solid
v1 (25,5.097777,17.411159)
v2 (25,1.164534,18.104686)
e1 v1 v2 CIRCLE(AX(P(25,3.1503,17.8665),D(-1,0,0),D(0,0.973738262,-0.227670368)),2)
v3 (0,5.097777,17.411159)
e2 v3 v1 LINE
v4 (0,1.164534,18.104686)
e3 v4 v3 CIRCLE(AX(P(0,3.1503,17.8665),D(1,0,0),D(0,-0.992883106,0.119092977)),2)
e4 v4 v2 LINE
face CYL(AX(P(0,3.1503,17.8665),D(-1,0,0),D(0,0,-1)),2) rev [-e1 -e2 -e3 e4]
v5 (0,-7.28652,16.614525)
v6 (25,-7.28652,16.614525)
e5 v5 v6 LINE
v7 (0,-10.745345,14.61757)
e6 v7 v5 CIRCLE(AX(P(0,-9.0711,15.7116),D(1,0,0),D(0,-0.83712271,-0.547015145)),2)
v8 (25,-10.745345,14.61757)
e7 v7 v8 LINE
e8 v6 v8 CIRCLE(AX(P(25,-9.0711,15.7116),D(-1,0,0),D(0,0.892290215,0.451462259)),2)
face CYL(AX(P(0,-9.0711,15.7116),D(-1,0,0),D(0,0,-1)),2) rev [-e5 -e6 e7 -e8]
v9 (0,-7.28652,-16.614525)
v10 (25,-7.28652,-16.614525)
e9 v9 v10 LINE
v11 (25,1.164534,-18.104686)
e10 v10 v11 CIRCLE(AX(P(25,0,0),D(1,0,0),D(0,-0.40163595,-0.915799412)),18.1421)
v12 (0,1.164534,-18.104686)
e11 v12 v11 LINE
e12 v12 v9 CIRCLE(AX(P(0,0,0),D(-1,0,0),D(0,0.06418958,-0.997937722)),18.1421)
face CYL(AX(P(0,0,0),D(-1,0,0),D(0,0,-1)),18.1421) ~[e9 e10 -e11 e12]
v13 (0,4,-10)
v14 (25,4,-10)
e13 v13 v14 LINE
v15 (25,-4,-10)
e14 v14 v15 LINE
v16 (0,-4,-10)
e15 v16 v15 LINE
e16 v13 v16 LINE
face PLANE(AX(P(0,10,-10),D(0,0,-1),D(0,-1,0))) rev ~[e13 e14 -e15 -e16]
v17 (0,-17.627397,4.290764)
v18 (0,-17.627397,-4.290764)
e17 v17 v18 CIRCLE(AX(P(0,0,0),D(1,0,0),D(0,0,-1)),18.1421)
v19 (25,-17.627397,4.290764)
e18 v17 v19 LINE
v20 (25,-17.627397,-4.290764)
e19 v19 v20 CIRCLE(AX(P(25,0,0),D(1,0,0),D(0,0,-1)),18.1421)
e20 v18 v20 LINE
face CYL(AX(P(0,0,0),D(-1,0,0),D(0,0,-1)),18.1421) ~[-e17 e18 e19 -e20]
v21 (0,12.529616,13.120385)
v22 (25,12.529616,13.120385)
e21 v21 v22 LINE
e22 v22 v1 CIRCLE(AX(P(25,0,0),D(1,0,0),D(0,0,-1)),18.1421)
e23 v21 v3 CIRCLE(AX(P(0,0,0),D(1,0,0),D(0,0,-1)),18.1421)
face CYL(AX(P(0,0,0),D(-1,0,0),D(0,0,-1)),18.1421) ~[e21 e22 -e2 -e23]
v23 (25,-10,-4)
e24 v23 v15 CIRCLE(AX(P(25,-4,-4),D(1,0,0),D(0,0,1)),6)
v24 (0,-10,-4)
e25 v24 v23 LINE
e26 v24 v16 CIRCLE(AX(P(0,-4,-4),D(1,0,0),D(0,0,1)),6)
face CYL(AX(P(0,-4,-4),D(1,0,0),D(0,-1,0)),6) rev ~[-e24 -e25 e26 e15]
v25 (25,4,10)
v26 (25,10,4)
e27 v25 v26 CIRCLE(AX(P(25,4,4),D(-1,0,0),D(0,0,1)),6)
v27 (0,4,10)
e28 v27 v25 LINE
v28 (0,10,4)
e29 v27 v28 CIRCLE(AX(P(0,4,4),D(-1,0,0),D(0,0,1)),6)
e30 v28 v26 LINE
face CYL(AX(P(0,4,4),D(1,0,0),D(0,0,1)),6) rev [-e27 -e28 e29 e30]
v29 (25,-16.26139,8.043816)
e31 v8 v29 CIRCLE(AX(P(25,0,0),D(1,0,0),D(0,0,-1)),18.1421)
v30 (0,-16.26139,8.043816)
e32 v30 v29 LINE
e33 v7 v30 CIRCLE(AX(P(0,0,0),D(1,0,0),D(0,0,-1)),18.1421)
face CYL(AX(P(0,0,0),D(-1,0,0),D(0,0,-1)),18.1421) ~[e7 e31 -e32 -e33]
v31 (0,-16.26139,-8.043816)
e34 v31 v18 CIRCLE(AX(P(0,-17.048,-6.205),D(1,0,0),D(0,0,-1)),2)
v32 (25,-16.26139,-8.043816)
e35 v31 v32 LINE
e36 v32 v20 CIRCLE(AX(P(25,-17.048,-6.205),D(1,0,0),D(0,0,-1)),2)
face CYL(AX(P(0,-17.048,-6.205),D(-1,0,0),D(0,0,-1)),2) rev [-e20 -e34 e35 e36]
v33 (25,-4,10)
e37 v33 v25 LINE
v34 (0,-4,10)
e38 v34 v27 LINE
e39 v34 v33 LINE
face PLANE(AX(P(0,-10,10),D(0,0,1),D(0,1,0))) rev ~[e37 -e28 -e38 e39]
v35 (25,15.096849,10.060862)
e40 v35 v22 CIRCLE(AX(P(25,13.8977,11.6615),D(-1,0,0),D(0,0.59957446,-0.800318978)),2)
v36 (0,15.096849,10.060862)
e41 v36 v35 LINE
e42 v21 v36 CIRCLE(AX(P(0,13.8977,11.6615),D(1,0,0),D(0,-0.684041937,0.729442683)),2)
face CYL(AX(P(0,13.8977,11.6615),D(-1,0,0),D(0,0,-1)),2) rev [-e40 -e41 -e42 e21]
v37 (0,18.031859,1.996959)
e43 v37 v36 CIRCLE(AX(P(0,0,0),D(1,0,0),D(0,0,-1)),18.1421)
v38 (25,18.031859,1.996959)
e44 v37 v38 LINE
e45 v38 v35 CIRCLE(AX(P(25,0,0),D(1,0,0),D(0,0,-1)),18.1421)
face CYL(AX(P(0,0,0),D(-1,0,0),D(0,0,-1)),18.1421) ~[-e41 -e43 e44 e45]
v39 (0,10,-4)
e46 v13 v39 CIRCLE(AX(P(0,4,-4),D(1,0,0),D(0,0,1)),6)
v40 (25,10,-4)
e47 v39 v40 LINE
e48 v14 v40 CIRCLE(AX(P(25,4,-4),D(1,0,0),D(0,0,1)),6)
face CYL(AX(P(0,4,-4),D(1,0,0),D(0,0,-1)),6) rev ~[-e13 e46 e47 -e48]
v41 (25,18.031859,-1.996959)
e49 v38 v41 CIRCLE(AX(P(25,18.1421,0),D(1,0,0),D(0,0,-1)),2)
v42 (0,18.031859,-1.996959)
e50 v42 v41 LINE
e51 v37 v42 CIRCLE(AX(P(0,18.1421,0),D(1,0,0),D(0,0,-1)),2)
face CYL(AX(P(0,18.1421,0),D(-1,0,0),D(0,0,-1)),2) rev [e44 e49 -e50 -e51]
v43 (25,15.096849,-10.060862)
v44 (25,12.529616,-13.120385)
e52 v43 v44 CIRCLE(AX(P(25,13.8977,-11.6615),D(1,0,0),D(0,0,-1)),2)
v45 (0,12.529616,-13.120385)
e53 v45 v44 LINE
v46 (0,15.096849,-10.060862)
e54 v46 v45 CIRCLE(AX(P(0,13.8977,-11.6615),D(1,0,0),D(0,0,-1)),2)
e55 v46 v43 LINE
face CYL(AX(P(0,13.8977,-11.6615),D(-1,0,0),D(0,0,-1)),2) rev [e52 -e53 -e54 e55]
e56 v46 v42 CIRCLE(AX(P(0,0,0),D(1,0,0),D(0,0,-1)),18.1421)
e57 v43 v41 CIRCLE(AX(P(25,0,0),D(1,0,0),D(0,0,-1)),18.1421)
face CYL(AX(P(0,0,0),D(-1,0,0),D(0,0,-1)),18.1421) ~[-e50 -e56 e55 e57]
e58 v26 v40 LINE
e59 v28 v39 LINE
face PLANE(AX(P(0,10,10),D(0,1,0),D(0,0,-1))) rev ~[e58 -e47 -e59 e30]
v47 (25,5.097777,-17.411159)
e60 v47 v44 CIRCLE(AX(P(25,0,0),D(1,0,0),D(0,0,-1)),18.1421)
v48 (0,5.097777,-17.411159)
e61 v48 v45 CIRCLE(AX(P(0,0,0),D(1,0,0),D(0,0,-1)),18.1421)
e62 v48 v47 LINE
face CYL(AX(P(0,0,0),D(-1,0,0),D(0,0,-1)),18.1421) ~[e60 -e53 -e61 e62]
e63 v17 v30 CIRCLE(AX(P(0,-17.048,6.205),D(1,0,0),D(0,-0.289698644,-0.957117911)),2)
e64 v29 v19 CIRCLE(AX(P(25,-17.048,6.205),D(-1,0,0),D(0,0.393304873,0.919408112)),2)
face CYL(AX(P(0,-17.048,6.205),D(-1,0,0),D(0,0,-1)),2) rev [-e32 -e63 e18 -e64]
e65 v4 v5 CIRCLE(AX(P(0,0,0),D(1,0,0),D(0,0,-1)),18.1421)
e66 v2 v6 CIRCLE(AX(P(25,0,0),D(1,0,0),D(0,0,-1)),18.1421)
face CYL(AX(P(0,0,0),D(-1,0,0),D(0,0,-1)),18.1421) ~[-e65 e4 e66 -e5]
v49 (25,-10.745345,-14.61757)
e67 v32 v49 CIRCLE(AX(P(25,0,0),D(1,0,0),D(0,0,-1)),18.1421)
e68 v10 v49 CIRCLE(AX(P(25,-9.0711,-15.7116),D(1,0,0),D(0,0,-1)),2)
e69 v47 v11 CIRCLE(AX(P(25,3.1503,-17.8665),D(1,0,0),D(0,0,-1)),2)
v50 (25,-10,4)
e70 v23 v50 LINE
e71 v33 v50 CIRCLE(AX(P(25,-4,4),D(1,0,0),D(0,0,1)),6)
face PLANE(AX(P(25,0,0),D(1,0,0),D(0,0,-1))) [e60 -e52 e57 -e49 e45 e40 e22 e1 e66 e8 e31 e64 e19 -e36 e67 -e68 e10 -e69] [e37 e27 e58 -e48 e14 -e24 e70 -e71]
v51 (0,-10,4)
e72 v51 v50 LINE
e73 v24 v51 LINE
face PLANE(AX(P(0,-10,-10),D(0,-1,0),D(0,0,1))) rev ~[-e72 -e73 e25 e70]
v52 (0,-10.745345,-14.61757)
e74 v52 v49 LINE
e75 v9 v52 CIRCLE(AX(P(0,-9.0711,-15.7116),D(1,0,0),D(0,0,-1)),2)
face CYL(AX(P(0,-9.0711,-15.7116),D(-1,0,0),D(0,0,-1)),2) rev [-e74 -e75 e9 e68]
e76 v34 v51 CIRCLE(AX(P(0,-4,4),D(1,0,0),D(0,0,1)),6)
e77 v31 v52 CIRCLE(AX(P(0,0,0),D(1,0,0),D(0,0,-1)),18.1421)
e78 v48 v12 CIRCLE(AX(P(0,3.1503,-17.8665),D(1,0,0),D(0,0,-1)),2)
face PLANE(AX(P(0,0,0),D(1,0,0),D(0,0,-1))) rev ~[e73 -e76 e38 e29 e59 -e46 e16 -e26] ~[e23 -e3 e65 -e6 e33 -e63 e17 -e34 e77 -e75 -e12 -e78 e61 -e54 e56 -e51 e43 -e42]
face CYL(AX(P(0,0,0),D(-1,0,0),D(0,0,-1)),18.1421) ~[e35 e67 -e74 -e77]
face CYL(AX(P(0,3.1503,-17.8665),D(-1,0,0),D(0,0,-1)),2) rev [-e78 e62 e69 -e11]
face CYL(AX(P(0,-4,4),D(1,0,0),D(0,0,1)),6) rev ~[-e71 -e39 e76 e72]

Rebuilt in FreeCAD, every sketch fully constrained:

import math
import FreeCAD as App
import Part
import Sketcher


def edges_at(feature, points):
    """Names of the edges that pass closest to the given points."""
    edges = feature.Shape.Edges
    near = lambda p: min(range(len(edges)), key=lambda i: edges[i].distToShape(Part.Vertex(*p))[0])
    return sorted({f"Edge{near(p) + 1}" for p in points})

doc = App.newDocument("Part")
body = doc.addObject("PartDesign::Body", "Body")

# Sketch on YZ plane
sketch1 = body.newObject("Sketcher::SketchObject", "Sketch")
sketch1.AttachmentSupport = (doc.getObject("YZ_Plane"), [""])
sketch1.MapMode = "FlatFace"
sketch1.addGeometry([
    Part.ArcOfCircle(Part.Circle(App.Vector(0, 0, 0), App.Vector(0, 0, 1), 18.1421), math.radians(-113.68049), math.radians(-86.319678)),  # 0
    Part.ArcOfCircle(Part.Circle(App.Vector(3.1503, -17.8665, 0), App.Vector(0, 0, 1), 2), math.radians(13.159955), math.radians(186.839759)),  # 1
    Part.ArcOfCircle(Part.Circle(App.Vector(0, 0, 0), App.Vector(0, 0, 1), 18.1421), math.radians(-73.680608), math.radians(-46.3194)),  # 2
    Part.ArcOfCircle(Part.Circle(App.Vector(13.8977, -11.6615, 0), App.Vector(0, 0, 1), 2), math.radians(53.160573), math.radians(226.839693)),  # 3
    Part.ArcOfCircle(Part.Circle(App.Vector(0, 0, 0), App.Vector(0, 0, 1), 18.1421), math.radians(-33.680335), math.radians(-6.319537)),  # 4
    Part.ArcOfCircle(Part.Circle(App.Vector(18.1421, 0, 0), App.Vector(0, 0, 1), 2), math.radians(93.159768), math.radians(266.840232)),  # 5
    Part.ArcOfCircle(Part.Circle(App.Vector(0, 0, 0), App.Vector(0, 0, 1), 18.1421), math.radians(6.319537), math.radians(33.680335)),  # 6
    Part.ArcOfCircle(Part.Circle(App.Vector(13.8977, 11.6615, 0), App.Vector(0, 0, 1), 2), math.radians(133.160307), math.radians(306.839427)),  # 7
    Part.ArcOfCircle(Part.Circle(App.Vector(0, 0, 0), App.Vector(0, 0, 1), 18.1421), math.radians(46.3194), math.radians(73.680608)),  # 8
    Part.ArcOfCircle(Part.Circle(App.Vector(3.1503, 17.8665, 0), App.Vector(0, 0, 1), 2), math.radians(173.160241), math.radians(346.840045)),  # 9
    Part.ArcOfCircle(Part.Circle(App.Vector(0, 0, 0), App.Vector(0, 0, 1), 18.1421), math.radians(86.319678), math.radians(113.68049)),  # 10
    Part.ArcOfCircle(Part.Circle(App.Vector(-9.0711, 15.7116, 0), App.Vector(0, 0, 1), 2), math.radians(-146.837521), math.radians(26.83754)),  # 11
    Part.ArcOfCircle(Part.Circle(App.Vector(0, 0, 0), App.Vector(0, 0, 1), 18.1421), math.radians(126.31953), math.radians(153.680361)),  # 12
    Part.ArcOfCircle(Part.Circle(App.Vector(-17.048, 6.205, 0), App.Vector(0, 0, 1), 2), math.radians(-106.839915), math.radians(66.839705)),  # 13
    Part.ArcOfCircle(Part.Circle(App.Vector(0, 0, 0), App.Vector(0, 0, 1), 18.1421), math.radians(166.319429), math.radians(193.680571)),  # 14
    Part.ArcOfCircle(Part.Circle(App.Vector(-17.048, -6.205, 0), App.Vector(0, 0, 1), 2), math.radians(-66.839705), math.radians(106.839915)),  # 15
    Part.ArcOfCircle(Part.Circle(App.Vector(0, 0, 0), App.Vector(0, 0, 1), 18.1421), math.radians(-153.680361), math.radians(-126.31953)),  # 16
    Part.ArcOfCircle(Part.Circle(App.Vector(-9.0711, -15.7116, 0), App.Vector(0, 0, 1), 2), math.radians(-26.83754), math.radians(146.837521)),  # 17
    Part.LineSegment(App.Vector(-10, 10, 0), App.Vector(10, 10, 0)),  # 18
    Part.LineSegment(App.Vector(10, 10, 0), App.Vector(10, -10, 0)),  # 19
    Part.LineSegment(App.Vector(10, -10, 0), App.Vector(-10, -10, 0)),  # 20
    Part.LineSegment(App.Vector(-10, -10, 0), App.Vector(-10, 10, 0)),  # 21
], False)
sketch1.addConstraint([
    Sketcher.Constraint("Coincident", 0, 2, 1, 2),
    Sketcher.Constraint("Coincident", 1, 1, 2, 1),
    Sketcher.Constraint("Coincident", 2, 2, 3, 2),
    Sketcher.Constraint("Coincident", 3, 1, 4, 1),
    Sketcher.Constraint("Coincident", 4, 2, 5, 2),
    Sketcher.Constraint("Coincident", 5, 1, 6, 1),
    Sketcher.Constraint("Coincident", 6, 2, 7, 2),
    Sketcher.Constraint("Coincident", 7, 1, 8, 1),
    Sketcher.Constraint("Coincident", 8, 2, 9, 2),
    Sketcher.Constraint("Coincident", 9, 1, 10, 1),
    Sketcher.Constraint("Coincident", 10, 2, 11, 2),
    Sketcher.Constraint("Coincident", 11, 1, 12, 1),
    Sketcher.Constraint("Coincident", 12, 2, 13, 2),
    Sketcher.Constraint("Coincident", 13, 1, 14, 1),
    Sketcher.Constraint("Coincident", 14, 2, 15, 2),
    Sketcher.Constraint("Coincident", 15, 1, 16, 1),
    Sketcher.Constraint("Coincident", 16, 2, 17, 2),
    Sketcher.Constraint("Coincident", 17, 1, 0, 1),
    Sketcher.Constraint("Coincident", 18, 2, 19, 1),
    Sketcher.Constraint("Coincident", 19, 2, 20, 1),
    Sketcher.Constraint("Coincident", 20, 2, 21, 1),
    Sketcher.Constraint("Coincident", 21, 2, 18, 1),
    Sketcher.Constraint("Horizontal", 18),
    Sketcher.Constraint("Vertical", 19),
    Sketcher.Constraint("Horizontal", 20),
    Sketcher.Constraint("Vertical", 21),
    Sketcher.Constraint("Coincident", 0, 3, -1, 1),
    Sketcher.Constraint("Coincident", 2, 3, -1, 1),
    Sketcher.Constraint("Coincident", 4, 3, -1, 1),
    Sketcher.Constraint("Coincident", 6, 3, -1, 1),
    Sketcher.Constraint("Coincident", 8, 3, -1, 1),
    Sketcher.Constraint("Coincident", 10, 3, -1, 1),
    Sketcher.Constraint("Coincident", 12, 3, -1, 1),
    Sketcher.Constraint("Coincident", 14, 3, -1, 1),
    Sketcher.Constraint("Coincident", 16, 3, -1, 1),
    Sketcher.Constraint("Equal", 0, 2),
    Sketcher.Constraint("Equal", 1, 3),
    Sketcher.Constraint("Equal", 2, 4),
    Sketcher.Constraint("Equal", 3, 5),
    Sketcher.Constraint("Equal", 4, 6),
    Sketcher.Constraint("Equal", 5, 7),
    Sketcher.Constraint("Equal", 6, 8),
    Sketcher.Constraint("Equal", 7, 9),
    Sketcher.Constraint("Equal", 8, 10),
    Sketcher.Constraint("Equal", 9, 11),
    Sketcher.Constraint("Equal", 10, 12),
    Sketcher.Constraint("Equal", 11, 13),
    Sketcher.Constraint("Equal", 12, 14),
    Sketcher.Constraint("Equal", 13, 15),
    Sketcher.Constraint("Equal", 14, 16),
    Sketcher.Constraint("Equal", 15, 17),
    Sketcher.Constraint("Symmetric", 18, 2, 20, 2, -1, 1),
    Sketcher.Constraint("Symmetric", 3, 3, 7, 3, -1),
    Sketcher.Constraint("Symmetric", 1, 3, 9, 3, -1),
    Sketcher.Constraint("Symmetric", 13, 3, 15, 3, -1),
    Sketcher.Constraint("Symmetric", 11, 3, 17, 3, -1),
    Sketcher.Constraint("PointOnObject", 5, 3, -1),
    Sketcher.Constraint("Equal", 20, 19),
    Sketcher.Constraint("Radius", 1, 2.0),
    Sketcher.Constraint("DistanceX", 18, 1, 18, 2, 20.0),
    Sketcher.Constraint("Radius", 0, 18.142),
    Sketcher.Constraint("DistanceX", 1, 1, 3, 3, 8.8),
    Sketcher.Constraint("DistanceY", 15, 3, 13, 3, 12.41),
    Sketcher.Constraint("DistanceX", -1, 1, 5, 3, 18.142),
    Sketcher.Constraint("DistanceX", 11, 3, -1, 1, 9.071),
    Sketcher.Constraint("DistanceX", 13, 3, -1, 1, 17.048),
    Sketcher.Constraint("DistanceY", 1, 3, 3, 3, 6.205),
    Sketcher.Constraint("DistanceY", 11, 3, 9, 3, 2.155),
    Sketcher.Constraint("DistanceY", 0, 2, 17, 3, 2.393),
    Sketcher.Constraint("DistanceX", 2, 2, 3, 3, 1.368),
])
pad1 = body.newObject("PartDesign::Pad", "Pad")
pad1.Profile = sketch1
pad1.Length = 25
doc.recompute()

fillet = body.newObject("PartDesign::Fillet", "Fillet")
fillet.Base = (pad1, edges_at(pad1, [
    (12.5, 10, 10),
    (12.5, -10, 10),
    (12.5, -10, -10),
    (12.5, 10, -10),
]))
fillet.Radius = 6

doc.recompute()
